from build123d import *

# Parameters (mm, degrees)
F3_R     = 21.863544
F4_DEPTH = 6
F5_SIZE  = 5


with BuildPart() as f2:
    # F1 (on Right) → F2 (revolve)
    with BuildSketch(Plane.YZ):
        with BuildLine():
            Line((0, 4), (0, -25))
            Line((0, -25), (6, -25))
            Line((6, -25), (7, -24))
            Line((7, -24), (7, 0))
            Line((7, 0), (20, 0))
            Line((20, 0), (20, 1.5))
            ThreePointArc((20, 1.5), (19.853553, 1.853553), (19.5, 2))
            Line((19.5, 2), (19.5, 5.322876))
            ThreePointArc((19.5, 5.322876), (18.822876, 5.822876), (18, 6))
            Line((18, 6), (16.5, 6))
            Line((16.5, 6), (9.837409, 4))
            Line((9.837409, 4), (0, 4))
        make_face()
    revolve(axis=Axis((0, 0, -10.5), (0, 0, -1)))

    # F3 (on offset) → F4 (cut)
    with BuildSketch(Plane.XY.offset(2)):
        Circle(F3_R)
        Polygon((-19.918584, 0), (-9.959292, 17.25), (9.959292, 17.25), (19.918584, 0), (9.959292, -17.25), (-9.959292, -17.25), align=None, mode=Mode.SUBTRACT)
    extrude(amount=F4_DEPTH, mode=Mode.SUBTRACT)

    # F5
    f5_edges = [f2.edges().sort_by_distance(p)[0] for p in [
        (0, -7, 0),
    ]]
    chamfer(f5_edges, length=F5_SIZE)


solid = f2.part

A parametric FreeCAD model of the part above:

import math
import FreeCAD as App
import Part
import Sketcher

V = App.Vector
Q = App.Units.Quantity


def edges_at(feature, points):
    """Names of the edges that pass closest to the given points."""
    edges = feature.Shape.Edges
    near = lambda p: min(range(len(edges)), key=lambda i: edges[i].distToShape(Part.Vertex(*p))[0])
    return sorted({f"Edge{near(p) + 1}" for p in points})

doc = App.newDocument("Part")
body = doc.addObject("PartDesign::Body", "Body")

# Sketch on YZ plane
sketch1 = body.newObject("Sketcher::SketchObject", "Sketch")
sketch1.AttachmentSupport = (doc.getObject("YZ_Plane"), [""])
sketch1.MapMode = "FlatFace"
sketch1.addGeometry([
    Part.LineSegment(V(0, 4, 0), V(0, -25, 0)),  # 0
    Part.LineSegment(V(0, -25, 0), V(6, -25, 0)),  # 1
    Part.LineSegment(V(6, -25, 0), V(7, -24, 0)),  # 2
    Part.LineSegment(V(7, -24, 0), V(7, 0, 0)),  # 3
    Part.LineSegment(V(7, 0, 0), V(20, 0, 0)),  # 4
    Part.LineSegment(V(20, 0, 0), V(20, 1.5, 0)),  # 5
    Part.ArcOfCircle(Part.Circle(V(19.5, 1.5, 0), V(0, 0, 1), 0.5), math.radians(0), math.radians(90)),  # 6
    Part.LineSegment(V(19.5, 2, 0), V(19.5, 5.3, 0)),  # 7
    Part.ArcOfCircle(Part.Circle(V(18, 4, 0), V(0, 0, 1), 2), math.radians(41), math.radians(90)),  # 8
    Part.LineSegment(V(18, 6, 0), V(16.5, 6, 0)),  # 9
    Part.LineSegment(V(16.5, 6, 0), V(9.8, 4, 0)),  # 10
    Part.LineSegment(V(9.8, 4, 0), V(0, 4, 0)),  # 11
], False)
sketch1.addConstraint([
    Sketcher.Constraint("Coincident", 0, 2, 1, 1),
    Sketcher.Constraint("Coincident", 1, 2, 2, 1),
    Sketcher.Constraint("Coincident", 2, 2, 3, 1),
    Sketcher.Constraint("Coincident", 3, 2, 4, 1),
    Sketcher.Constraint("Coincident", 4, 2, 5, 1),
    Sketcher.Constraint("Coincident", 5, 2, 6, 1),
    Sketcher.Constraint("Coincident", 6, 2, 7, 1),
    Sketcher.Constraint("Coincident", 7, 2, 8, 1),
    Sketcher.Constraint("Tangent", 8, 2, 9, 1),
    Sketcher.Constraint("Coincident", 9, 2, 10, 1),
    Sketcher.Constraint("Coincident", 10, 2, 11, 1),
    Sketcher.Constraint("Coincident", 11, 2, 0, 1),
    Sketcher.Constraint("Vertical", 0),
    Sketcher.Constraint("Horizontal", 1),
    Sketcher.Constraint("Vertical", 3),
    Sketcher.Constraint("Horizontal", 4),
    Sketcher.Constraint("Vertical", 5),
    Sketcher.Constraint("Vertical", 7),
    Sketcher.Constraint("Horizontal", 9),
    Sketcher.Constraint("Horizontal", 11),
    Sketcher.Constraint("PointOnObject", 0, 2, -2),
    Sketcher.Constraint("PointOnObject", 3, 2, -1),
    Sketcher.Constraint("Horizontal", 6, 3, 5, 2),
    Sketcher.Constraint("Equal", 9, 5),
    Sketcher.Constraint("Radius", 6, Q("0.500001 mm")),
    Sketcher.Constraint("DistanceX", 1, 1, 1, 2, Q("6 mm")),
    Sketcher.Constraint("DistanceX", 4, 1, 4, 2, Q("13 mm")),
    Sketcher.Constraint("DistanceY", 0, 2, 0, 1, Q("29 mm")),
    Sketcher.Constraint("DistanceY", 3, 1, 3, 2, Q("24 mm")),
    Sketcher.Constraint("Angle", 2, Q("45 deg")),
    Sketcher.Constraint("DistanceX", 9, 2, 9, 1, Q("1.5 mm")),
    Sketcher.Constraint("DistanceX", -1, 1, 8, 3, Q("18.000002 mm")),
    Sketcher.Constraint("DistanceY", 0, 2, -1, 1, Q("25 mm")),
    Sketcher.Constraint("DistanceY", -1, 1, 8, 2, Q("6 mm")),
    Sketcher.Constraint("DistanceX", 9, 2, 7, 2, Q("3 mm")),
    Sketcher.Constraint("Radius", 8, Q("1.999997 mm")),
    Sketcher.Constraint("Distance", 10, Q("6.956301 mm")),
])
revolution = body.newObject("PartDesign::Revolution", "Revolution")
revolution.Profile = sketch1
revolution.ReferenceAxis = (sketch1, ["V_Axis"])
revolution.Angle = 360

# Sketch on XY plane
sketch2 = body.newObject("Sketcher::SketchObject", "Sketch001")
sketch2.AttachmentSupport = (doc.getObject("XY_Plane"), [""])
sketch2.MapMode = "FlatFace"
sketch2.AttachmentOffset = App.Placement(V(0, 0, 2), App.Rotation())
sketch2.addGeometry([
    Part.Circle(V(0, 0, 0), V(0, 0, 1), 22),  # 0
    Part.LineSegment(V(-10, -17, 0), V(-20, 0, 0)),  # 1
    Part.LineSegment(V(-20, 0, 0), V(-10, 17, 0)),  # 2
    Part.LineSegment(V(-10, 17, 0), V(10, 17, 0)),  # 3
    Part.LineSegment(V(10, 17, 0), V(20, 0, 0)),  # 4
    Part.LineSegment(V(20, 0, 0), V(10, -17, 0)),  # 5
    Part.LineSegment(V(10, -17, 0), V(-10, -17, 0)),  # 6
], False)
sketch2.addConstraint([
    Sketcher.Constraint("Coincident", 1, 2, 2, 1),
    Sketcher.Constraint("Coincident", 2, 2, 3, 1),
    Sketcher.Constraint("Coincident", 3, 2, 4, 1),
    Sketcher.Constraint("Coincident", 4, 2, 5, 1),
    Sketcher.Constraint("Coincident", 5, 2, 6, 1),
    Sketcher.Constraint("Coincident", 6, 2, 1, 1),
    Sketcher.Constraint("Horizontal", 3),
    Sketcher.Constraint("Horizontal", 6),
    Sketcher.Constraint("Coincident", 0, 3, -1, 1),
    Sketcher.Constraint("Symmetric", 1, 2, 4, 2, -1, 1),
    Sketcher.Constraint("Symmetric", 2, 2, 5, 2, -1, 1),
    Sketcher.Constraint("PointOnObject", 1, 2, -1),
    Sketcher.Constraint("Parallel", 1, 4),
    Sketcher.Constraint("Vertical", 3, 2, 5, 2),
    Sketcher.Constraint("Angle", 1, Q("120 deg")),
    Sketcher.Constraint("DistanceY", 5, 2, 3, 2, Q("34.5 mm")),
    Sketcher.Constraint("Diameter", 0, Q("43.727088 mm")),
    Sketcher.Constraint("DistanceX", 3, 1, 3, 2, Q("19.918584 mm")),
])
pocket1 = body.newObject("PartDesign::Pocket", "Pocket")
pocket1.Profile = sketch2
pocket1.Length = 6
pocket1.Reversed = True
doc.recompute()

chamfer = body.newObject("PartDesign::Chamfer", "Chamfer")
chamfer.Base = (pocket1, edges_at(pocket1, [(0, -7, 0)]))
chamfer.Size = 5

doc.recompute()
